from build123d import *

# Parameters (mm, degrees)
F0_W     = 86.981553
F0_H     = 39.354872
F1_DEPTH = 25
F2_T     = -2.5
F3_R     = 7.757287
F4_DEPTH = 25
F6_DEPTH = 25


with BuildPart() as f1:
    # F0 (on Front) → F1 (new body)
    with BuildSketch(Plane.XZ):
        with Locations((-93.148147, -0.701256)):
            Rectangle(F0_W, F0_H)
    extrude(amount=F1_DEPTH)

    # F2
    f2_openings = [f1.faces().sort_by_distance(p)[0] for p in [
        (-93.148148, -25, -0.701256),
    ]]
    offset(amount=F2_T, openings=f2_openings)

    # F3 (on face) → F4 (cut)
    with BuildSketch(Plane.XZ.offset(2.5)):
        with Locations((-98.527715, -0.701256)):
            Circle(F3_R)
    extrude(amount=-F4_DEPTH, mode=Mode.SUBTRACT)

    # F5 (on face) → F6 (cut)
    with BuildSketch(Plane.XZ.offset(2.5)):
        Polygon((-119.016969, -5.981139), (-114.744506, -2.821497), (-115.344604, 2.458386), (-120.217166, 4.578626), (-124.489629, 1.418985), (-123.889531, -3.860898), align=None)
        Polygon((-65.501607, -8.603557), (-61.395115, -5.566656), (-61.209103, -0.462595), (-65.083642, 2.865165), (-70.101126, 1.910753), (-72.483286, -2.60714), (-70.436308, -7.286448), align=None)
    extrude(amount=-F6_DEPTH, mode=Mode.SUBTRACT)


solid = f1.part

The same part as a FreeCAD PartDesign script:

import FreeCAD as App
import Part
import Sketcher


def faces_at(feature, points):
    """Names of the faces that lie closest to the given points."""
    faces = feature.Shape.Faces
    near = lambda p: min(range(len(faces)), key=lambda i: faces[i].distToShape(Part.Vertex(*p))[0])
    return sorted({f"Face{near(p) + 1}" for p in points})

doc = App.newDocument("Part")
body = doc.addObject("PartDesign::Body", "Body")

# Sketch on XZ plane
sketch1 = doc.addObject("Sketcher::SketchObject", "Sketch")
body.addObject(sketch1)
sketch1.AttachmentSupport = (doc.XZ_Plane, [""])
sketch1.MapMode = "FlatFace"
sketch1.addGeometry([
    Part.LineSegment(App.Vector(-137, 19, 0), App.Vector(-137, -20, 0)),
    Part.LineSegment(App.Vector(-137, -20, 0), App.Vector(-50, -20, 0)),
    Part.LineSegment(App.Vector(-50, -20, 0), App.Vector(-50, 19, 0)),
    Part.LineSegment(App.Vector(-50, 19, 0), App.Vector(-137, 19, 0)),
], False)
sketch1.addConstraint([
    Sketcher.Constraint("Coincident", 0, 2, 1, 1),
    Sketcher.Constraint("Coincident", 1, 2, 2, 1),
    Sketcher.Constraint("Coincident", 2, 2, 3, 1),
    Sketcher.Constraint("Coincident", 3, 2, 0, 1),
    Sketcher.Constraint("Vertical", 0),
    Sketcher.Constraint("Horizontal", 1),
    Sketcher.Constraint("Vertical", 2),
    Sketcher.Constraint("Horizontal", 3),
    Sketcher.Constraint("DistanceX", 1, 1, 1, 2, 86.981553),
    Sketcher.Constraint("DistanceY", 0, 2, 0, 1, 39.354872),
    Sketcher.Constraint("DistanceX", 1, 2, -1, 1, 49.65737),
    Sketcher.Constraint("DistanceY", -1, 1, 2, 2, 18.97618),
])
pad1 = doc.addObject("PartDesign::Pad", "Pad")
body.addObject(pad1)
pad1.Profile = sketch1
pad1.Length = 25
doc.recompute()

thickness = doc.addObject("PartDesign::Thickness", "Thickness")
body.addObject(thickness)
thickness.Base = (pad1, faces_at(pad1, [(-93.148, -25, -0.701)]))
thickness.Value = 2.5
thickness.Reversed = True
thickness.Join = "Arc"

# Sketch on XZ plane
sketch2 = doc.addObject("Sketcher::SketchObject", "Sketch001")
body.addObject(sketch2)
sketch2.AttachmentSupport = (doc.XZ_Plane, [""])
sketch2.MapMode = "FlatFace"
sketch2.AttachmentOffset = App.Placement(App.Vector(0, 0, 2.5), App.Rotation())
sketch2.addGeometry(Part.Circle(App.Vector(-99, -1, 0), App.Vector(0, 0, 1), 8), False)
sketch2.addConstraint([
    Sketcher.Constraint("Diameter", 0, 15.514574),
    Sketcher.Constraint("DistanceX", 0, 3, -1, 1, 98.527715),
    Sketcher.Constraint("DistanceY", 0, 3, -1, 1, 0.701256),
])
pocket1 = doc.addObject("PartDesign::Pocket", "Pocket")
body.addObject(pocket1)
pocket1.Profile = sketch2
pocket1.Length = 25

# Sketch on XZ plane
sketch3 = doc.addObject("Sketcher::SketchObject", "Sketch002")
body.addObject(sketch3)
sketch3.AttachmentSupport = (doc.XZ_Plane, [""])
sketch3.MapMode = "FlatFace"
sketch3.AttachmentOffset = App.Placement(App.Vector(0, 0, 2.5), App.Rotation())
sketch3.addGeometry([
    Part.LineSegment(App.Vector(-119.016969, -5.981139, 0), App.Vector(-114.744506, -2.821497, 0)),  # 0
    Part.LineSegment(App.Vector(-114.744506, -2.821497, 0), App.Vector(-115.344604, 2.458386, 0)),  # 1
    Part.LineSegment(App.Vector(-115.344604, 2.458386, 0), App.Vector(-120.217166, 4.578626, 0)),  # 2
    Part.LineSegment(App.Vector(-120.217166, 4.578626, 0), App.Vector(-124.489629, 1.418985, 0)),  # 3
    Part.LineSegment(App.Vector(-124.489629, 1.418985, 0), App.Vector(-123.889531, -3.860898, 0)),  # 4
    Part.LineSegment(App.Vector(-123.889531, -3.860898, 0), App.Vector(-119.016969, -5.981139, 0)),  # 5
    Part.LineSegment(App.Vector(-65.501607, -8.603557, 0), App.Vector(-61.395115, -5.566656, 0)),  # 6
    Part.LineSegment(App.Vector(-61.395115, -5.566656, 0), App.Vector(-61.209103, -0.462595, 0)),  # 7
    Part.LineSegment(App.Vector(-61.209103, -0.462595, 0), App.Vector(-65.083642, 2.865165, 0)),  # 8
    Part.LineSegment(App.Vector(-65.083642, 2.865165, 0), App.Vector(-70.101126, 1.910753, 0)),  # 9
    Part.LineSegment(App.Vector(-70.101126, 1.910753, 0), App.Vector(-72.483286, -2.60714, 0)),  # 10
    Part.LineSegment(App.Vector(-72.483286, -2.60714, 0), App.Vector(-70.436308, -7.286448, 0)),  # 11
    Part.LineSegment(App.Vector(-70.436308, -7.286448, 0), App.Vector(-65.501607, -8.603557, 0)),  # 12
], False)
sketch3.addConstraint([
    Sketcher.Constraint("Coincident", 0, 2, 1, 1),
    Sketcher.Constraint("Coincident", 1, 2, 2, 1),
    Sketcher.Constraint("Coincident", 2, 2, 3, 1),
    Sketcher.Constraint("Coincident", 3, 2, 4, 1),
    Sketcher.Constraint("Coincident", 4, 2, 5, 1),
    Sketcher.Constraint("Coincident", 5, 2, 0, 1),
    Sketcher.Constraint("Coincident", 6, 2, 7, 1),
    Sketcher.Constraint("Coincident", 7, 2, 8, 1),
    Sketcher.Constraint("Coincident", 8, 2, 9, 1),
    Sketcher.Constraint("Coincident", 9, 2, 10, 1),
    Sketcher.Constraint("Coincident", 10, 2, 11, 1),
    Sketcher.Constraint("Coincident", 11, 2, 12, 1),
    Sketcher.Constraint("Coincident", 12, 2, 6, 1),
    Sketcher.Constraint("DistanceY", 4, 2, -1, 1, 3.860898),
    Sketcher.Constraint("DistanceX", 1, 2, 0, 2, 0.600098),
    Sketcher.Constraint("DistanceY", 3, 2, 1, 2, 1.039401),
    Sketcher.Constraint("DistanceY", 4, 2, 0, 2, 1.039401),
    Sketcher.Constraint("DistanceY", 0, 2, 7, 2, 2.358902),
    Sketcher.Constraint("DistanceX", 1, 2, 7, 2, 54.135501),
    Sketcher.Constraint("DistanceY", 11, 2, 9, 2, 9.197201),
    Sketcher.Constraint("DistanceY", 12, 2, 6, 2, 3.036901),
    Sketcher.Constraint("DistanceX", 11, 2, 12, 2, 4.934701),
    Sketcher.Constraint("Distance", 6, 5.10745),
    Sketcher.Constraint("Distance", 7, 5.107449),
    Sketcher.Constraint("Distance", 8, 5.107449),
    Sketcher.Constraint("Distance", 9, 5.10745),
    Sketcher.Constraint("Distance", 10, 5.10745),
    Sketcher.Constraint("Distance", 11, 5.10745),
    Sketcher.Constraint("Distance", 12, 5.10745),
    Sketcher.Constraint("DistanceX", 3, 2, -1, 1, 124.489629),
    Sketcher.Constraint("DistanceX", 4, 2, -1, 1, 123.889531),
    Sketcher.Constraint("DistanceX", 5, 2, -1, 1, 119.016969),
    Sketcher.Constraint("DistanceY", 5, 2, -1, 1, 5.981139),
    Sketcher.Constraint("DistanceX", 8, 2, -1, 1, 65.083642),
    Sketcher.Constraint("DistanceY", 10, 2, -1, 1, 2.60714),
    Sketcher.Constraint("DistanceY", 1, 2, 2, 2, 2.12024),
    Sketcher.Constraint("DistanceX", 2, 2, 0, 2, 5.47266),
    Sketcher.Constraint("DistanceX", 0, 2, 6, 2, 53.349391),
    Sketcher.Constraint("DistanceY", 6, 2, 1, 2, 8.025042),
])
pocket2 = doc.addObject("PartDesign::Pocket", "Pocket001")
body.addObject(pocket2)
pocket2.Profile = sketch3
pocket2.Length = 25

doc.recompute()
